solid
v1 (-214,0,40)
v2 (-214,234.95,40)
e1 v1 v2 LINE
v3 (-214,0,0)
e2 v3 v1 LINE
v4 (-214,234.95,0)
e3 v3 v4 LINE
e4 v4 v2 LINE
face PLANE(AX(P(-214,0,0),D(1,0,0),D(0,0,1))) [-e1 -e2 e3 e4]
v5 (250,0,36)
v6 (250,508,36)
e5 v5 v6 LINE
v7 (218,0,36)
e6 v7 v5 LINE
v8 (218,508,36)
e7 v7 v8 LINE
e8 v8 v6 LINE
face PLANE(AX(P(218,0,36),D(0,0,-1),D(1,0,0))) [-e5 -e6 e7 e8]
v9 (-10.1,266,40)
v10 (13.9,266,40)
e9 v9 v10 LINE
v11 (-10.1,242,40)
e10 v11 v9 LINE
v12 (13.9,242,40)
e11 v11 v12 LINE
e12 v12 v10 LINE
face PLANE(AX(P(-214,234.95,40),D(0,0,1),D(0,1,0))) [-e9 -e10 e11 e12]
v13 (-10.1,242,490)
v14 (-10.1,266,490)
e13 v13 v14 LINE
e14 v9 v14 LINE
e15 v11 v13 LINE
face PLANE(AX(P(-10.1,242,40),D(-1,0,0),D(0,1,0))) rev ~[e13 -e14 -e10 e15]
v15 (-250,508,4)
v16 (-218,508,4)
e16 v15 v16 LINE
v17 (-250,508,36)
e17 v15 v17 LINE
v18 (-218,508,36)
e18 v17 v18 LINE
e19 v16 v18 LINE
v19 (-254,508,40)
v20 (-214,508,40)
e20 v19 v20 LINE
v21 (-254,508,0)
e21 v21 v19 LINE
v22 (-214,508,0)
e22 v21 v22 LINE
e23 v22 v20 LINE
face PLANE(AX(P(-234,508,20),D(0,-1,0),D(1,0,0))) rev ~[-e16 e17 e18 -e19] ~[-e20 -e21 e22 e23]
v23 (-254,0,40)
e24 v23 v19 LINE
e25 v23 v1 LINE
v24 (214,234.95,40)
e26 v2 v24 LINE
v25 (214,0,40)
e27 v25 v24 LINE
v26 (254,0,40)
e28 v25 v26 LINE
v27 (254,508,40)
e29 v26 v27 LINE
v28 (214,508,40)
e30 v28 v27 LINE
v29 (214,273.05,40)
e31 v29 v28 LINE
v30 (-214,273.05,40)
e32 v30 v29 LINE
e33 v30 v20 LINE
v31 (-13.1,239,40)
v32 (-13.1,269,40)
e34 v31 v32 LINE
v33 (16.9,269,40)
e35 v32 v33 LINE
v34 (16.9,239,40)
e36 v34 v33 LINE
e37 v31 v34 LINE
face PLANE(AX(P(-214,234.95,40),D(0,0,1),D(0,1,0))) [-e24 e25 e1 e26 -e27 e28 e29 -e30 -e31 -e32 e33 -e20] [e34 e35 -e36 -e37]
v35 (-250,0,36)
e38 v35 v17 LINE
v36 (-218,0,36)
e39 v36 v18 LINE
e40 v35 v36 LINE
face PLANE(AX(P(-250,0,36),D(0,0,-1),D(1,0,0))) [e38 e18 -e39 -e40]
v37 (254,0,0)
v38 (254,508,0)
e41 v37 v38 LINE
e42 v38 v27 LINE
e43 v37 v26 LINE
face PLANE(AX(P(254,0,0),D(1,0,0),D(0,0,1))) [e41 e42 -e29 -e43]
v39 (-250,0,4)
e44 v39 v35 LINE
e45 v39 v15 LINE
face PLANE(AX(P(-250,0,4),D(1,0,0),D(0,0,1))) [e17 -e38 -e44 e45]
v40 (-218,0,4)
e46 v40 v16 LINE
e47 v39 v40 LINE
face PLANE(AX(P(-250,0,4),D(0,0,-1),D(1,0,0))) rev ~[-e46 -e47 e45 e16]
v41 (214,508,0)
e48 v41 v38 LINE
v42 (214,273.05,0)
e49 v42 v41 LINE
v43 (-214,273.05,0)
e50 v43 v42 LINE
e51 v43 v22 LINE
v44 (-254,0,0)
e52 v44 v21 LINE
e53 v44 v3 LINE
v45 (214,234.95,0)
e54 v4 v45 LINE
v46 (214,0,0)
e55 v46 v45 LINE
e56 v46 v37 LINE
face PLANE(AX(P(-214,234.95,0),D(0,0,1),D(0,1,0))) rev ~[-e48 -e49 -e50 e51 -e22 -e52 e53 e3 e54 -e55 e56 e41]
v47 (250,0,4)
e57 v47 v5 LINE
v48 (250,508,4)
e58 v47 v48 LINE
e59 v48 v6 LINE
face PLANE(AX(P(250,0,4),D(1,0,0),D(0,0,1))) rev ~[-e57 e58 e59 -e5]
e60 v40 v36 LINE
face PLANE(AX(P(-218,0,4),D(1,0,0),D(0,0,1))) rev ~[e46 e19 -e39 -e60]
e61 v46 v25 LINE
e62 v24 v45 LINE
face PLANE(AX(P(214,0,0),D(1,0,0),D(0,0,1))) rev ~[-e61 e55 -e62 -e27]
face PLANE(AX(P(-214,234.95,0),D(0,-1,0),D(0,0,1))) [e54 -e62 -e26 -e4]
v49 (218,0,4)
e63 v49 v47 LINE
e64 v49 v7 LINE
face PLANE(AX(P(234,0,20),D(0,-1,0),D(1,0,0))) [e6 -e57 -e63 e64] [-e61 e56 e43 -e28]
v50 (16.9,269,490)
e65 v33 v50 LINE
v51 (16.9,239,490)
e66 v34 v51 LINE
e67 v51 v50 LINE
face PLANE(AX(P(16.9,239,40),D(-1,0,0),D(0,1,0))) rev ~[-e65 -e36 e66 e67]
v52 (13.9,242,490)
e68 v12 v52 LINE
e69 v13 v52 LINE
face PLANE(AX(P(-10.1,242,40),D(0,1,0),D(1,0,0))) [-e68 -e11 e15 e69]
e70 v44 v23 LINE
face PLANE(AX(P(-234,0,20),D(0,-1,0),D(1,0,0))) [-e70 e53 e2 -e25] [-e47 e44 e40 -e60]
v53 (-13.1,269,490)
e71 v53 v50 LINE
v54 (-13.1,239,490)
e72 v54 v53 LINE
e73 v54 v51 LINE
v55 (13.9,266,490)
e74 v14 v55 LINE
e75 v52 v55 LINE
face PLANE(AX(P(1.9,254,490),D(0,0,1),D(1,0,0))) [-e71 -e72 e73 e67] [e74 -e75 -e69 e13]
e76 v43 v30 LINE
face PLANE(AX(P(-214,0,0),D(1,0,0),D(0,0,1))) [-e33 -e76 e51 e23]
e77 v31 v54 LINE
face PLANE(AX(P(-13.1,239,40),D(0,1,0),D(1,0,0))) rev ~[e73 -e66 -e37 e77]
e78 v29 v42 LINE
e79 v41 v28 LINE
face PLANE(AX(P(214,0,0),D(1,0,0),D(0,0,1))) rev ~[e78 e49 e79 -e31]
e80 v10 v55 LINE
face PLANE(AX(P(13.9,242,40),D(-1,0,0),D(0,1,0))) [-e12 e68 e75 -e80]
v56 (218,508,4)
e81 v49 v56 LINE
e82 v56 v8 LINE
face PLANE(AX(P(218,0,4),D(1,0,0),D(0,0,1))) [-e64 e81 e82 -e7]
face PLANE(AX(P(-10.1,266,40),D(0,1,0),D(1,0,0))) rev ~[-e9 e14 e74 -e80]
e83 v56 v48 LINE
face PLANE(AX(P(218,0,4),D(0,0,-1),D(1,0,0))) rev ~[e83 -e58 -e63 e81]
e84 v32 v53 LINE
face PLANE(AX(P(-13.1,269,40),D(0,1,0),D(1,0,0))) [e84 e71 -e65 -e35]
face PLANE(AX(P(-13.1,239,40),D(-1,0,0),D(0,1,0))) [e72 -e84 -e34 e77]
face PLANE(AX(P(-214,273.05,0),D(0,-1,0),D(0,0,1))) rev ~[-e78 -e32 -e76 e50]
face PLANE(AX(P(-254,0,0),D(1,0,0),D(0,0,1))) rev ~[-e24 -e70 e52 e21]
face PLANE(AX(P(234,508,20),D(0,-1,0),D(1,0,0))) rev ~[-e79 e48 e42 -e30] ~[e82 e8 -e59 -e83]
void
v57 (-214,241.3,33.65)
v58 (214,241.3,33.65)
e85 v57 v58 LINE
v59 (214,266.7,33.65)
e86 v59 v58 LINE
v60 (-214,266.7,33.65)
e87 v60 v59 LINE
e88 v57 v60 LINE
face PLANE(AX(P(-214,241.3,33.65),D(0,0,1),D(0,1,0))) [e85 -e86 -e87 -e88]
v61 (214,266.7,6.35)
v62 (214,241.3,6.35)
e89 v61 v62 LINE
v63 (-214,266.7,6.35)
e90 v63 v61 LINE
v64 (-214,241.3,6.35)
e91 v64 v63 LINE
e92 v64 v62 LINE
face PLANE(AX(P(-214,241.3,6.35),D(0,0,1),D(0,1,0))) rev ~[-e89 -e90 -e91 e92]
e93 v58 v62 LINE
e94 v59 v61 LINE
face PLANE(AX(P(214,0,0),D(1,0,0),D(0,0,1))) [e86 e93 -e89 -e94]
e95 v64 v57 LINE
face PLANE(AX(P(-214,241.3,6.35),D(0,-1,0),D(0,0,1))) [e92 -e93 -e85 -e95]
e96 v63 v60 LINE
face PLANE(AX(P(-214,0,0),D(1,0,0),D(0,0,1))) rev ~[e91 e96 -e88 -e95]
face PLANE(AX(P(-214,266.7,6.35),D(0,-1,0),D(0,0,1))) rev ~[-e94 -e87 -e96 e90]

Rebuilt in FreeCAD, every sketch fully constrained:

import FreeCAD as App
import Part
import Sketcher
Q = App.Units.Quantity


def add_polygon(sketch, points):
    """Adds a closed chain of lines whose ends are joined by coincident constraints."""
    first, n = sketch.GeometryCount, len(points)
    for a, b in zip(points, points[1:] + points[:1]):
        sketch.addGeometry(Part.LineSegment(App.Vector(*a, 0), App.Vector(*b, 0)), False)
    for i in range(n):
        sketch.addConstraint(Sketcher.Constraint("Coincident", first + i, 2, first + (i + 1) % n, 1))

doc = App.newDocument("Part")
body = doc.addObject("PartDesign::Body", "Body")

sketch1 = body.newObject("Sketcher::SketchObject", "Sketch")
sketch1.AttachmentSupport = (doc.getObject("XZ_Plane"), [""])
sketch1.MapMode = "FlatFace"
add_polygon(sketch1, [(-254, 40), (-254, 0), (-214, 0), (-214, 40)])
add_polygon(sketch1, [(-218, 4), (-250, 4), (-250, 36), (-218, 36)])
sketch1.addConstraint([
    Sketcher.Constraint("Vertical", 0),
    Sketcher.Constraint("Horizontal", 1),
    Sketcher.Constraint("Vertical", 2),
    Sketcher.Constraint("Horizontal", 3),
    Sketcher.Constraint("Horizontal", 4),
    Sketcher.Constraint("Vertical", 5),
    Sketcher.Constraint("Horizontal", 6),
    Sketcher.Constraint("Vertical", 7),
    Sketcher.Constraint("PointOnObject", 0, 2, -1),
    Sketcher.Constraint("Equal", 3, 0),
    Sketcher.Constraint("Equal", 6, 5),
    Sketcher.Constraint("DistanceX", 1, 1, 1, 2, Q("40 mm")),
    Sketcher.Constraint("DistanceX", 4, 2, 4, 1, Q("32 mm")),
    Sketcher.Constraint("DistanceX", 0, 2, -1, 1, Q("254 mm")),
    Sketcher.Constraint("DistanceX", 4, 2, -1, 1, Q("250 mm")),
    Sketcher.Constraint("DistanceY", -1, 1, 4, 2, Q("4 mm")),
])
pad1 = body.newObject("PartDesign::Pad", "Pad")
pad1.Profile = sketch1
pad1.Length = 508
pad1.Reversed = True
body2 = doc.addObject("PartDesign::Body", "Body001")

sketch2 = body2.newObject("Sketcher::SketchObject", "Sketch001")
sketch2.AttachmentSupport = (doc.getObject("XZ_Plane001"), [""])
sketch2.MapMode = "FlatFace"
add_polygon(sketch2, [(214, 40), (214, 0), (254, 0), (254, 40)])
add_polygon(sketch2, [(250, 4), (218, 4), (218, 36), (250, 36)])
sketch2.addConstraint([
    Sketcher.Constraint("Vertical", 0),
    Sketcher.Constraint("Horizontal", 1),
    Sketcher.Constraint("Vertical", 2),
    Sketcher.Constraint("Horizontal", 3),
    Sketcher.Constraint("Horizontal", 4),
    Sketcher.Constraint("Vertical", 5),
    Sketcher.Constraint("Horizontal", 6),
    Sketcher.Constraint("Vertical", 7),
    Sketcher.Constraint("PointOnObject", 0, 2, -1),
    Sketcher.Constraint("Equal", 3, 0),
    Sketcher.Constraint("Equal", 6, 5),
    Sketcher.Constraint("DistanceX", 1, 1, 1, 2, Q("40 mm")),
    Sketcher.Constraint("DistanceX", 4, 2, 4, 1, Q("32 mm")),
    Sketcher.Constraint("DistanceX", -1, 1, 0, 2, Q("214 mm")),
    Sketcher.Constraint("DistanceX", -1, 1, 4, 2, Q("218 mm")),
    Sketcher.Constraint("DistanceY", -1, 1, 4, 2, Q("4 mm")),
])
pad2 = body2.newObject("PartDesign::Pad", "Pad001")
pad2.Profile = sketch2
pad2.Length = 508
pad2.Reversed = True
body.AllowCompound = True
doc.recompute()

boolean = body.newObject("PartDesign::Boolean", "Boolean")
boolean.Type = "Fuse"
boolean.addObjects([body2])

sketch3 = body.newObject("Sketcher::SketchObject", "Sketch002")
sketch3.AttachmentSupport = (doc.getObject("YZ_Plane"), [""])
sketch3.MapMode = "FlatFace"
sketch3.AttachmentOffset = App.Placement(App.Vector(0, 0, -214), App.Rotation())
add_polygon(sketch3, [(235, 40), (235, 0), (273, 0), (273, 40)])
add_polygon(sketch3, [(267, 6), (241, 6), (241, 34), (267, 34)])
sketch3.addConstraint([
    Sketcher.Constraint("Vertical", 0),
    Sketcher.Constraint("Horizontal", 1),
    Sketcher.Constraint("Vertical", 2),
    Sketcher.Constraint("Horizontal", 3),
    Sketcher.Constraint("Horizontal", 4),
    Sketcher.Constraint("Vertical", 5),
    Sketcher.Constraint("Horizontal", 6),
    Sketcher.Constraint("Vertical", 7),
    Sketcher.Constraint("PointOnObject", 0, 2, -1),
    Sketcher.Constraint("DistanceY", 0, 2, 0, 1, Q("40 mm")),
    Sketcher.Constraint("DistanceX", 1, 1, 1, 2, Q("38.1 mm")),
    Sketcher.Constraint("DistanceX", 4, 2, 4, 1, Q("25.4 mm")),
    Sketcher.Constraint("DistanceY", 5, 1, 5, 2, Q("27.3 mm")),
    Sketcher.Constraint("DistanceX", -1, 1, 4, 2, Q("241.3 mm")),
    Sketcher.Constraint("DistanceX", -1, 1, 0, 2, Q("234.95 mm")),
    Sketcher.Constraint("DistanceY", -1, 1, 4, 2, Q("6.35 mm")),
])
pad3 = body.newObject("PartDesign::Pad", "Pad002")
pad3.Profile = sketch3
pad3.Length = 431.8

sketch4 = body.newObject("Sketcher::SketchObject", "Sketch003")
sketch4.AttachmentSupport = (doc.getObject("XY_Plane"), [""])
sketch4.MapMode = "FlatFace"
sketch4.AttachmentOffset = App.Placement(App.Vector(0, 0, 40), App.Rotation())
add_polygon(sketch4, [(-13, 269), (-13, 239), (17, 239), (17, 269)])
add_polygon(sketch4, [(14, 242), (-10, 242), (-10, 266), (14, 266)])
sketch4.addConstraint([
    Sketcher.Constraint("Vertical", 0),
    Sketcher.Constraint("Horizontal", 1),
    Sketcher.Constraint("Vertical", 2),
    Sketcher.Constraint("Horizontal", 3),
    Sketcher.Constraint("Horizontal", 4),
    Sketcher.Constraint("Vertical", 5),
    Sketcher.Constraint("Horizontal", 6),
    Sketcher.Constraint("Vertical", 7),
    Sketcher.Constraint("Equal", 3, 0),
    Sketcher.Constraint("Equal", 6, 5),
    Sketcher.Constraint("DistanceX", 1, 1, 1, 2, Q("30 mm")),
    Sketcher.Constraint("DistanceX", 4, 2, 4, 1, Q("24 mm")),
    Sketcher.Constraint("DistanceY", -1, 1, 0, 2, Q("239 mm")),
    Sketcher.Constraint("DistanceY", -1, 1, 4, 2, Q("242 mm")),
    Sketcher.Constraint("DistanceX", 0, 2, 4, 2, Q("3 mm")),
    Sketcher.Constraint("DistanceX", 0, 2, -1, 1, Q("13.1 mm")),
])
pad4 = body.newObject("PartDesign::Pad", "Pad003")
pad4.Profile = sketch4
pad4.Length = 450

doc.recompute()
